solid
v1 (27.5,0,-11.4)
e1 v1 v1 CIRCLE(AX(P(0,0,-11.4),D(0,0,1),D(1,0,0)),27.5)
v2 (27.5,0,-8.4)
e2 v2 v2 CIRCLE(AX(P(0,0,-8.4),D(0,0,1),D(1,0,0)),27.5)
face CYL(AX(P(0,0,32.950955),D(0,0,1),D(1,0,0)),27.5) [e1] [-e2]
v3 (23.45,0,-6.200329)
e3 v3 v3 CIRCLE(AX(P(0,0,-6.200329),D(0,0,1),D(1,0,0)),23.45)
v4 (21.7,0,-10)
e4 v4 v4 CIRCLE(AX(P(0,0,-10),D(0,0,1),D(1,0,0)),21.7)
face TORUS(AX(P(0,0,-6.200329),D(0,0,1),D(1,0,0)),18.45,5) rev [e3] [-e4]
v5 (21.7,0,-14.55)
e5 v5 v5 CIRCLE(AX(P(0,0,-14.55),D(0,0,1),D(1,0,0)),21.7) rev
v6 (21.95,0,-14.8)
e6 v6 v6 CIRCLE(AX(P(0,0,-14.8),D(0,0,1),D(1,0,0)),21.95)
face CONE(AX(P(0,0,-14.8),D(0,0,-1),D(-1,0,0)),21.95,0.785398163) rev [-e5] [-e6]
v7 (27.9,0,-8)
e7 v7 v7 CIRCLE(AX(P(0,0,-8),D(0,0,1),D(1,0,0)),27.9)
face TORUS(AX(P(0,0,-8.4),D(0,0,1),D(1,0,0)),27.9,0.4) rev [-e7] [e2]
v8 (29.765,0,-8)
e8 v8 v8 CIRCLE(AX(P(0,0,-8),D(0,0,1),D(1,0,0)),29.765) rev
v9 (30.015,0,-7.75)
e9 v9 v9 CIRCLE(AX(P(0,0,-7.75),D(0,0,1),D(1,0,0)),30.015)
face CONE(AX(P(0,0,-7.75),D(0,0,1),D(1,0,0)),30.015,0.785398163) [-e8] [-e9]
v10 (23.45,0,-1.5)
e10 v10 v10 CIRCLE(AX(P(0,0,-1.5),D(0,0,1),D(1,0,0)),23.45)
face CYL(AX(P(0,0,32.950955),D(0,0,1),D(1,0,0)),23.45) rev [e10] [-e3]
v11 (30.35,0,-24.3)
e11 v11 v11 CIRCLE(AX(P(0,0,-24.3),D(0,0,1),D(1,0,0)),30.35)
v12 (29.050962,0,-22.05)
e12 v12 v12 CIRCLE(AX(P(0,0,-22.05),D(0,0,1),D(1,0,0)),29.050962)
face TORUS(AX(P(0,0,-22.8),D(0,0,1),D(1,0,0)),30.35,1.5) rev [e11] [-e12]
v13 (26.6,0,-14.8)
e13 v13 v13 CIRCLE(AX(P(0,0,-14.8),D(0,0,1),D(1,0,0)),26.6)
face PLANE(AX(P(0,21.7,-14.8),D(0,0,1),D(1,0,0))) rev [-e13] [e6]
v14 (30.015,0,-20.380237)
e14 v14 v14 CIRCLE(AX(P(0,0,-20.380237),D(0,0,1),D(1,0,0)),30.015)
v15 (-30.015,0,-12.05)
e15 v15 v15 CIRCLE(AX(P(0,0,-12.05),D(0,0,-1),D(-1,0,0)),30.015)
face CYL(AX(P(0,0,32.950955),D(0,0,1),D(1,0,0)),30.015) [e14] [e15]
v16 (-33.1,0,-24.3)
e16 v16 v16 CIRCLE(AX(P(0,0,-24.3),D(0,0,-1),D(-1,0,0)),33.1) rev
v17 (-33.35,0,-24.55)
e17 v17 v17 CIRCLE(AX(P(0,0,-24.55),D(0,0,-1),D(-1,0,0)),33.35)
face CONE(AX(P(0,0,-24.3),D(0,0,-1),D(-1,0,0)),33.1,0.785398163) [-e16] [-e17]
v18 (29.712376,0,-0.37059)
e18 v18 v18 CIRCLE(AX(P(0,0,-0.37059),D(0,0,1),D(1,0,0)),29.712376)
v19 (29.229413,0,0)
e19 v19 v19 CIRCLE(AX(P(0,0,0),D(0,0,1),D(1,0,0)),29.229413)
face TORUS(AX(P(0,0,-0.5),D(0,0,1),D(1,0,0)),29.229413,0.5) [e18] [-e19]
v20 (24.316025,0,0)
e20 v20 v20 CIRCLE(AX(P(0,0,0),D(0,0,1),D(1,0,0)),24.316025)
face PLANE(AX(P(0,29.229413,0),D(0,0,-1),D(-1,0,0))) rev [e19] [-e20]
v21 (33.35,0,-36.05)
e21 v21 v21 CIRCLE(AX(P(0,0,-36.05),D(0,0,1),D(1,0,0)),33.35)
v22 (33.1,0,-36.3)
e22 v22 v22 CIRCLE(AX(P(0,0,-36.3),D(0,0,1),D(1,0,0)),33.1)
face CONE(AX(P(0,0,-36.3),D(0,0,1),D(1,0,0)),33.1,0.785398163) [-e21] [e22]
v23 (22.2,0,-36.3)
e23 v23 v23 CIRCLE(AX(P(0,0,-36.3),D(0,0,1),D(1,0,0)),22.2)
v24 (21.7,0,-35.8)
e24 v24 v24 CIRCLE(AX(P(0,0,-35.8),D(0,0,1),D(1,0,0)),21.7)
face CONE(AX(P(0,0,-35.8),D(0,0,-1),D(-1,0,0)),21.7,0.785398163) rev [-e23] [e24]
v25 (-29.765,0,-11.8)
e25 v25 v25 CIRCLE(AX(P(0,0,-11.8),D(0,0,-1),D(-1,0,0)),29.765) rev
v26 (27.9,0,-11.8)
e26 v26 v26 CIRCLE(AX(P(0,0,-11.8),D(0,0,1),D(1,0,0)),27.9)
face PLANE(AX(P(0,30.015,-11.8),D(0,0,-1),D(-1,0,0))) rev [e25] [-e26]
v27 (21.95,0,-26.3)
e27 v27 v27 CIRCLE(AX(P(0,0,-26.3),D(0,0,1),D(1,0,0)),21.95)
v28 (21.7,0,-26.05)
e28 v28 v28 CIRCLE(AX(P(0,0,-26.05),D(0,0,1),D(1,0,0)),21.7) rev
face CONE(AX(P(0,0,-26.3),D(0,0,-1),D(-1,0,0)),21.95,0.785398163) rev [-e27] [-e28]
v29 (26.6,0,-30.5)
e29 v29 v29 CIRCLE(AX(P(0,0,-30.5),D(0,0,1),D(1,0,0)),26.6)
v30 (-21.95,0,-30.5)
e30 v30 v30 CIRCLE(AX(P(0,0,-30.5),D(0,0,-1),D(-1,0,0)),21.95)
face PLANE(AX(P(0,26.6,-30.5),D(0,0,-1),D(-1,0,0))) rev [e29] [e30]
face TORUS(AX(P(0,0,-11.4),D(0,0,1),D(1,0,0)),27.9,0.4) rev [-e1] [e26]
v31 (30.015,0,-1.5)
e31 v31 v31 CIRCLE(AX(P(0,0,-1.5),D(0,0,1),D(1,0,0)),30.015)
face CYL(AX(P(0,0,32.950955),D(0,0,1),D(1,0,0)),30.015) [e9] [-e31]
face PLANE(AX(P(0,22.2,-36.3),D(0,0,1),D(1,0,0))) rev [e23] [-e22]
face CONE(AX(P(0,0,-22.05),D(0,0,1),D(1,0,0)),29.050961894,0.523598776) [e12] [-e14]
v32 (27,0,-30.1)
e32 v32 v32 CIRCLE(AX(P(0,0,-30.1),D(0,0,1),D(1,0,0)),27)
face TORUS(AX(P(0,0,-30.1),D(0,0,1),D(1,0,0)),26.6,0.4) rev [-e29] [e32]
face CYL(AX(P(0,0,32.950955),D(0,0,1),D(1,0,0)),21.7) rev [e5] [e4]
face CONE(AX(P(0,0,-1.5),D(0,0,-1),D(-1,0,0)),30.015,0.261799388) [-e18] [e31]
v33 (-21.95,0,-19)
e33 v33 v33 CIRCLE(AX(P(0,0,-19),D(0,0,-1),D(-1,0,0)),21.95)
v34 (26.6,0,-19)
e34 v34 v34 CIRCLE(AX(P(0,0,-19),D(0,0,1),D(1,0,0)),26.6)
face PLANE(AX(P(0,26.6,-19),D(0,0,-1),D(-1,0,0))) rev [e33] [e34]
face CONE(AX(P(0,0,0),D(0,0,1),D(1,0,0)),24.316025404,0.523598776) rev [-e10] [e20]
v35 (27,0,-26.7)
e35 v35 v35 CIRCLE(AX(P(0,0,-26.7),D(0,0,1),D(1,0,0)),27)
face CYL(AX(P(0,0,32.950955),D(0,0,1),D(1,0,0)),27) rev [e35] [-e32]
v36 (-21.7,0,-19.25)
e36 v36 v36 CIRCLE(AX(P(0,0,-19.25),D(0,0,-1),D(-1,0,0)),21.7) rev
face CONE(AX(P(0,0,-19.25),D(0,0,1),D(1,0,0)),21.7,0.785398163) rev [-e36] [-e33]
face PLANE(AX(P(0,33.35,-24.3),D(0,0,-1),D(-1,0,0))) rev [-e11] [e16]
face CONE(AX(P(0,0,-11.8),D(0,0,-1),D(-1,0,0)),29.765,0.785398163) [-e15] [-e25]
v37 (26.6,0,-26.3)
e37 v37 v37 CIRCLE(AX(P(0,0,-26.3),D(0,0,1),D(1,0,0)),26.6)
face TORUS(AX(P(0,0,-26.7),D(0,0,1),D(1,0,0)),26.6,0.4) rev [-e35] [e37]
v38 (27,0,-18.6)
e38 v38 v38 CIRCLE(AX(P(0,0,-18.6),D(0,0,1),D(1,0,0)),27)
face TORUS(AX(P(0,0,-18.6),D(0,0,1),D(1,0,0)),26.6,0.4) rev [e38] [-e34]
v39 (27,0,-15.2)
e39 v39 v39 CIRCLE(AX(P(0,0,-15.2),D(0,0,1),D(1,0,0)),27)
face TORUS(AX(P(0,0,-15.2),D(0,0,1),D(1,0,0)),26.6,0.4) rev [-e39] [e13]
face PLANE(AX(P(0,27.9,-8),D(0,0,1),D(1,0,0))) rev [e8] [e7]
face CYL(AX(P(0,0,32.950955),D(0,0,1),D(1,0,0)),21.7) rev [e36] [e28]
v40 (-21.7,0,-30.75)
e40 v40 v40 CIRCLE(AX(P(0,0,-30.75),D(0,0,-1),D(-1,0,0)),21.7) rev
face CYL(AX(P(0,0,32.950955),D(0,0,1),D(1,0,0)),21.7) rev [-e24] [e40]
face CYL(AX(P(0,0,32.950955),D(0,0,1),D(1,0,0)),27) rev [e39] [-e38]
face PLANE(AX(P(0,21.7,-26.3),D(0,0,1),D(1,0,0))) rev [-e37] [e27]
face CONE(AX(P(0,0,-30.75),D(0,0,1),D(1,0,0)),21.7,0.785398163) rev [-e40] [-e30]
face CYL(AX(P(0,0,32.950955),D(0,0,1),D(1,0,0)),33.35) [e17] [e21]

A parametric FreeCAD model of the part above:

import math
import FreeCAD as App
import Part
import Sketcher
Q = App.Units.Quantity


def edges_at(feature, points):
    """Names of the edges that pass closest to the given points."""
    edges = feature.Shape.Edges
    near = lambda p: min(range(len(edges)), key=lambda i: edges[i].distToShape(Part.Vertex(*p))[0])
    return sorted({f"Edge{near(p) + 1}" for p in points})

doc = App.newDocument("Part")
body = doc.addObject("PartDesign::Body", "Body")

sketch1 = body.newObject("Sketcher::SketchObject", "Sketch")
sketch1.AttachmentSupport = (doc.getObject("YZ_Plane"), [""])
sketch1.MapMode = "FlatFace"
sketch1.addGeometry(Part.LineSegment(App.Vector(29.23, 0, 0), App.Vector(24.32, 0, 0)), False)
sketch1.addGeometry(Part.LineSegment(App.Vector(24.32, 0, 0), App.Vector(23.45, -1.5, 0)), False)
sketch1.addGeometry(Part.LineSegment(App.Vector(23.45, -1.5, 0), App.Vector(23.45, -6.2, 0)), False)
sketch1.addGeometry(Part.ArcOfCircle(Part.Circle(App.Vector(18.45, -6.2, 0), App.Vector(0, 0, 1), 5), math.radians(-49), math.radians(0)), False)
sketch1.addGeometry(Part.LineSegment(App.Vector(21.7, -10, 0), App.Vector(21.7, -14.8, 0)), False)
sketch1.addGeometry(Part.LineSegment(App.Vector(21.7, -14.8, 0), App.Vector(26.6, -14.8, 0)), False)
sketch1.addGeometry(Part.ArcOfCircle(Part.Circle(App.Vector(26.6, -15.2, 0), App.Vector(0, 0, 1), 0.4), math.radians(0), math.radians(90)), False)
sketch1.addGeometry(Part.LineSegment(App.Vector(27, -15.2, 0), App.Vector(27, -18.6, 0)), False)
sketch1.addGeometry(Part.ArcOfCircle(Part.Circle(App.Vector(26.6, -18.6, 0), App.Vector(0, 0, 1), 0.4), math.radians(-90), math.radians(0)), False)
sketch1.addGeometry(Part.LineSegment(App.Vector(26.6, -19, 0), App.Vector(21.7, -19, 0)), False)
sketch1.addGeometry(Part.LineSegment(App.Vector(21.7, -19, 0), App.Vector(21.7, -26.3, 0)), False)
sketch1.addGeometry(Part.LineSegment(App.Vector(21.7, -26.3, 0), App.Vector(26.6, -26.3, 0)), False)
sketch1.addGeometry(Part.ArcOfCircle(Part.Circle(App.Vector(26.6, -26.7, 0), App.Vector(0, 0, 1), 0.4), math.radians(0), math.radians(90)), False)
sketch1.addGeometry(Part.LineSegment(App.Vector(27, -26.7, 0), App.Vector(27, -30.1, 0)), False)
sketch1.addGeometry(Part.ArcOfCircle(Part.Circle(App.Vector(26.6, -30.1, 0), App.Vector(0, 0, 1), 0.4), math.radians(-90), math.radians(0)), False)
sketch1.addGeometry(Part.LineSegment(App.Vector(26.6, -30.5, 0), App.Vector(21.7, -30.5, 0)), False)
sketch1.addGeometry(Part.LineSegment(App.Vector(21.7, -30.5, 0), App.Vector(21.7, -35.8, 0)), False)
sketch1.addGeometry(Part.LineSegment(App.Vector(21.7, -35.8, 0), App.Vector(22.2, -36.3, 0)), False)
sketch1.addGeometry(Part.LineSegment(App.Vector(22.2, -36.3, 0), App.Vector(33.1, -36.3, 0)), False)
sketch1.addGeometry(Part.LineSegment(App.Vector(33.1, -36.3, 0), App.Vector(33.35, -36.05, 0)), False)
sketch1.addGeometry(Part.LineSegment(App.Vector(33.35, -36.05, 0), App.Vector(33.35, -24.3, 0)), False)
sketch1.addGeometry(Part.LineSegment(App.Vector(33.35, -24.3, 0), App.Vector(30.35, -24.3, 0)), False)
sketch1.addGeometry(Part.ArcOfCircle(Part.Circle(App.Vector(30.35, -22.8, 0), App.Vector(0, 0, 1), 1.5), math.radians(150), math.radians(270)), False)
sketch1.addGeometry(Part.LineSegment(App.Vector(29.05, -22.05, 0), App.Vector(30.02, -20.38, 0)), False)
sketch1.addGeometry(Part.LineSegment(App.Vector(30.02, -20.38, 0), App.Vector(30.02, -11.8, 0)), False)
sketch1.addGeometry(Part.LineSegment(App.Vector(30.02, -11.8, 0), App.Vector(27.9, -11.8, 0)), False)
sketch1.addGeometry(Part.ArcOfCircle(Part.Circle(App.Vector(27.9, -11.4, 0), App.Vector(0, 0, 1), 0.4), math.radians(-180), math.radians(-90)), False)
sketch1.addGeometry(Part.LineSegment(App.Vector(27.5, -11.4, 0), App.Vector(27.5, -8.4, 0)), False)
sketch1.addGeometry(Part.ArcOfCircle(Part.Circle(App.Vector(27.9, -8.4, 0), App.Vector(0, 0, 1), 0.4), math.radians(90), math.radians(180)), False)
sketch1.addGeometry(Part.LineSegment(App.Vector(27.9, -8, 0), App.Vector(30.02, -8, 0)), False)
sketch1.addGeometry(Part.LineSegment(App.Vector(30.02, -8, 0), App.Vector(30.02, -1.5, 0)), False)
sketch1.addGeometry(Part.LineSegment(App.Vector(30.02, -1.5, 0), App.Vector(29.71, -0.37, 0)), False)
sketch1.addGeometry(Part.ArcOfCircle(Part.Circle(App.Vector(29.23, -0.5, 0), App.Vector(0, 0, 1), 0.5), math.radians(15), math.radians(90)), False)
sketch1.addConstraint(Sketcher.Constraint("Coincident", 0, 2, 1, 1))
sketch1.addConstraint(Sketcher.Constraint("Coincident", 1, 2, 2, 1))
sketch1.addConstraint(Sketcher.Constraint("Tangent", 2, 2, 3, 2))
sketch1.addConstraint(Sketcher.Constraint("Coincident", 3, 1, 4, 1))
sketch1.addConstraint(Sketcher.Constraint("Coincident", 4, 2, 5, 1))
sketch1.addConstraint(Sketcher.Constraint("Tangent", 5, 2, 6, 2))
sketch1.addConstraint(Sketcher.Constraint("Tangent", 6, 1, 7, 1))
sketch1.addConstraint(Sketcher.Constraint("Tangent", 7, 2, 8, 2))
sketch1.addConstraint(Sketcher.Constraint("Tangent", 8, 1, 9, 1))
sketch1.addConstraint(Sketcher.Constraint("Coincident", 9, 2, 10, 1))
sketch1.addConstraint(Sketcher.Constraint("Coincident", 10, 2, 11, 1))
sketch1.addConstraint(Sketcher.Constraint("Tangent", 11, 2, 12, 2))
sketch1.addConstraint(Sketcher.Constraint("Tangent", 12, 1, 13, 1))
sketch1.addConstraint(Sketcher.Constraint("Tangent", 13, 2, 14, 2))
sketch1.addConstraint(Sketcher.Constraint("Tangent", 14, 1, 15, 1))
sketch1.addConstraint(Sketcher.Constraint("Coincident", 15, 2, 16, 1))
sketch1.addConstraint(Sketcher.Constraint("Coincident", 16, 2, 17, 1))
sketch1.addConstraint(Sketcher.Constraint("Coincident", 17, 2, 18, 1))
sketch1.addConstraint(Sketcher.Constraint("Coincident", 18, 2, 19, 1))
sketch1.addConstraint(Sketcher.Constraint("Coincident", 19, 2, 20, 1))
sketch1.addConstraint(Sketcher.Constraint("Coincident", 20, 2, 21, 1))
sketch1.addConstraint(Sketcher.Constraint("Tangent", 21, 2, 22, 2))
sketch1.addConstraint(Sketcher.Constraint("Tangent", 22, 1, 23, 1))
sketch1.addConstraint(Sketcher.Constraint("Coincident", 23, 2, 24, 1))
sketch1.addConstraint(Sketcher.Constraint("Coincident", 24, 2, 25, 1))
sketch1.addConstraint(Sketcher.Constraint("Tangent", 25, 2, 26, 2))
sketch1.addConstraint(Sketcher.Constraint("Tangent", 26, 1, 27, 1))
sketch1.addConstraint(Sketcher.Constraint("Tangent", 27, 2, 28, 2))
sketch1.addConstraint(Sketcher.Constraint("Tangent", 28, 1, 29, 1))
sketch1.addConstraint(Sketcher.Constraint("Coincident", 29, 2, 30, 1))
sketch1.addConstraint(Sketcher.Constraint("Coincident", 30, 2, 31, 1))
sketch1.addConstraint(Sketcher.Constraint("Tangent", 31, 2, 32, 1))
sketch1.addConstraint(Sketcher.Constraint("Tangent", 32, 2, 0, 1))
sketch1.addConstraint(Sketcher.Constraint("Horizontal", 0))
sketch1.addConstraint(Sketcher.Constraint("Vertical", 2))
sketch1.addConstraint(Sketcher.Constraint("Vertical", 4))
sketch1.addConstraint(Sketcher.Constraint("Horizontal", 5))
sketch1.addConstraint(Sketcher.Constraint("Vertical", 7))
sketch1.addConstraint(Sketcher.Constraint("Horizontal", 9))
sketch1.addConstraint(Sketcher.Constraint("Vertical", 10))
sketch1.addConstraint(Sketcher.Constraint("Horizontal", 11))
sketch1.addConstraint(Sketcher.Constraint("Vertical", 13))
sketch1.addConstraint(Sketcher.Constraint("Horizontal", 15))
sketch1.addConstraint(Sketcher.Constraint("Vertical", 16))
sketch1.addConstraint(Sketcher.Constraint("Horizontal", 18))
sketch1.addConstraint(Sketcher.Constraint("Vertical", 20))
sketch1.addConstraint(Sketcher.Constraint("Horizontal", 21))
sketch1.addConstraint(Sketcher.Constraint("Vertical", 24))
sketch1.addConstraint(Sketcher.Constraint("Horizontal", 25))
sketch1.addConstraint(Sketcher.Constraint("Vertical", 27))
sketch1.addConstraint(Sketcher.Constraint("Horizontal", 29))
sketch1.addConstraint(Sketcher.Constraint("Vertical", 30))
sketch1.addConstraint(Sketcher.Constraint("Equal", 6, 8))
sketch1.addConstraint(Sketcher.Constraint("Equal", 8, 12))
sketch1.addConstraint(Sketcher.Constraint("Equal", 12, 14))
sketch1.addConstraint(Sketcher.Constraint("Equal", 14, 26))
sketch1.addConstraint(Sketcher.Constraint("Equal", 26, 28))
sketch1.addConstraint(Sketcher.Constraint("PointOnObject", 0, 2, -1))
sketch1.addConstraint(Sketcher.Constraint("Perpendicular", 17, 19))
sketch1.addConstraint(Sketcher.Constraint("Parallel", 1, 23))
sketch1.addConstraint(Sketcher.Constraint("Horizontal", 1, 2, 30, 2))
sketch1.addConstraint(Sketcher.Constraint("Vertical", 8, 3, 12, 3))
sketch1.addConstraint(Sketcher.Constraint("Vertical", 4, 2, 9, 2))
sketch1.addConstraint(Sketcher.Constraint("Vertical", 10, 2, 15, 2))
sketch1.addConstraint(Sketcher.Constraint("Vertical", 24, 2, 29, 2))
sketch1.addConstraint(Sketcher.Constraint("Equal", 7, 13))
sketch1.addConstraint(Sketcher.Constraint("Equal", 21, 27))
sketch1.addConstraint(Sketcher.Constraint("Radius", 3, Q("5 mm")))
sketch1.addConstraint(Sketcher.Constraint("Radius", 6, Q("0.4 mm")))
sketch1.addConstraint(Sketcher.Constraint("Radius", 22, Q("1.5 mm")))
sketch1.addConstraint(Sketcher.Constraint("Radius", 32, Q("0.5 mm")))
sketch1.addConstraint(Sketcher.Constraint("DistanceX", 21, 2, 21, 1, Q("3 mm")))
sketch1.addConstraint(Sketcher.Constraint("Angle", 1, Q("-120 deg")))
sketch1.addConstraint(Sketcher.Constraint("Angle", 17, Q("-45 deg")))
sketch1.addConstraint(Sketcher.Constraint("Angle", 31, Q("105 deg")))
sketch1.addConstraint(Sketcher.Constraint("DistanceX", 5, 1, 5, 2, Q("4.9 mm")))
sketch1.addConstraint(Sketcher.Constraint("DistanceX", 18, 1, 18, 2, Q("10.9 mm")))
sketch1.addConstraint(Sketcher.Constraint("DistanceY", 4, 2, 4, 1, Q("4.8 mm")))
sketch1.addConstraint(Sketcher.Constraint("DistanceY", 7, 2, 7, 1, Q("3.4 mm")))
sketch1.addConstraint(Sketcher.Constraint("DistanceY", 10, 2, 10, 1, Q("7.3 mm")))
sketch1.addConstraint(Sketcher.Constraint("DistanceY", 16, 2, 16, 1, Q("5.3 mm")))
sketch1.addConstraint(Sketcher.Constraint("DistanceY", 30, 1, 30, 2, Q("6.5 mm")))
sketch1.addConstraint(Sketcher.Constraint("DistanceY", 3, 1, -1, 1, Q("10 mm")))
sketch1.addConstraint(Sketcher.Constraint("DistanceX", -1, 1, 6, 1, Q("27 mm")))
sketch1.addConstraint(Sketcher.Constraint("DistanceY", 28, 1, -1, 1, Q("8 mm")))
sketch1.addConstraint(Sketcher.Constraint("DistanceY", 11, 2, 20, 2, Q("2 mm")))
sketch1.addConstraint(Sketcher.Constraint("DistanceY", 20, 1, 20, 2, Q("11.75 mm")))
sketch1.addConstraint(Sketcher.Constraint("DistanceX", -1, 1, 26, 3, Q("27.9 mm")))
sketch1.addConstraint(Sketcher.Constraint("DistanceX", -1, 1, 17, 2, Q("22.2 mm")))
sketch1.addConstraint(Sketcher.Constraint("DistanceX", 3, 3, 22, 3, Q("11.9 mm")))
sketch1.addConstraint(Sketcher.Constraint("DistanceX", 25, 2, 25, 1, Q("2.115 mm")))
revolution = body.newObject("PartDesign::Revolution", "Revolution")
revolution.Profile = sketch1
revolution.ReferenceAxis = (sketch1, ["V_Axis"])
revolution.Angle = 360
doc.recompute()

chamfer = body.newObject("PartDesign::Chamfer", "Chamfer")
chamfer.Base = (revolution, edges_at(revolution, [
    (-33.35, 0, -24.3),
    (-21.7, 0, -30.5),
    (-21.7, 0, -26.3),
    (-21.7, 0, -19),
    (-21.7, 0, -14.8),
    (-30.015, 0, -8),
    (-30.015, 0, -11.8),
]))
chamfer.Size = 0.25

doc.recompute()
